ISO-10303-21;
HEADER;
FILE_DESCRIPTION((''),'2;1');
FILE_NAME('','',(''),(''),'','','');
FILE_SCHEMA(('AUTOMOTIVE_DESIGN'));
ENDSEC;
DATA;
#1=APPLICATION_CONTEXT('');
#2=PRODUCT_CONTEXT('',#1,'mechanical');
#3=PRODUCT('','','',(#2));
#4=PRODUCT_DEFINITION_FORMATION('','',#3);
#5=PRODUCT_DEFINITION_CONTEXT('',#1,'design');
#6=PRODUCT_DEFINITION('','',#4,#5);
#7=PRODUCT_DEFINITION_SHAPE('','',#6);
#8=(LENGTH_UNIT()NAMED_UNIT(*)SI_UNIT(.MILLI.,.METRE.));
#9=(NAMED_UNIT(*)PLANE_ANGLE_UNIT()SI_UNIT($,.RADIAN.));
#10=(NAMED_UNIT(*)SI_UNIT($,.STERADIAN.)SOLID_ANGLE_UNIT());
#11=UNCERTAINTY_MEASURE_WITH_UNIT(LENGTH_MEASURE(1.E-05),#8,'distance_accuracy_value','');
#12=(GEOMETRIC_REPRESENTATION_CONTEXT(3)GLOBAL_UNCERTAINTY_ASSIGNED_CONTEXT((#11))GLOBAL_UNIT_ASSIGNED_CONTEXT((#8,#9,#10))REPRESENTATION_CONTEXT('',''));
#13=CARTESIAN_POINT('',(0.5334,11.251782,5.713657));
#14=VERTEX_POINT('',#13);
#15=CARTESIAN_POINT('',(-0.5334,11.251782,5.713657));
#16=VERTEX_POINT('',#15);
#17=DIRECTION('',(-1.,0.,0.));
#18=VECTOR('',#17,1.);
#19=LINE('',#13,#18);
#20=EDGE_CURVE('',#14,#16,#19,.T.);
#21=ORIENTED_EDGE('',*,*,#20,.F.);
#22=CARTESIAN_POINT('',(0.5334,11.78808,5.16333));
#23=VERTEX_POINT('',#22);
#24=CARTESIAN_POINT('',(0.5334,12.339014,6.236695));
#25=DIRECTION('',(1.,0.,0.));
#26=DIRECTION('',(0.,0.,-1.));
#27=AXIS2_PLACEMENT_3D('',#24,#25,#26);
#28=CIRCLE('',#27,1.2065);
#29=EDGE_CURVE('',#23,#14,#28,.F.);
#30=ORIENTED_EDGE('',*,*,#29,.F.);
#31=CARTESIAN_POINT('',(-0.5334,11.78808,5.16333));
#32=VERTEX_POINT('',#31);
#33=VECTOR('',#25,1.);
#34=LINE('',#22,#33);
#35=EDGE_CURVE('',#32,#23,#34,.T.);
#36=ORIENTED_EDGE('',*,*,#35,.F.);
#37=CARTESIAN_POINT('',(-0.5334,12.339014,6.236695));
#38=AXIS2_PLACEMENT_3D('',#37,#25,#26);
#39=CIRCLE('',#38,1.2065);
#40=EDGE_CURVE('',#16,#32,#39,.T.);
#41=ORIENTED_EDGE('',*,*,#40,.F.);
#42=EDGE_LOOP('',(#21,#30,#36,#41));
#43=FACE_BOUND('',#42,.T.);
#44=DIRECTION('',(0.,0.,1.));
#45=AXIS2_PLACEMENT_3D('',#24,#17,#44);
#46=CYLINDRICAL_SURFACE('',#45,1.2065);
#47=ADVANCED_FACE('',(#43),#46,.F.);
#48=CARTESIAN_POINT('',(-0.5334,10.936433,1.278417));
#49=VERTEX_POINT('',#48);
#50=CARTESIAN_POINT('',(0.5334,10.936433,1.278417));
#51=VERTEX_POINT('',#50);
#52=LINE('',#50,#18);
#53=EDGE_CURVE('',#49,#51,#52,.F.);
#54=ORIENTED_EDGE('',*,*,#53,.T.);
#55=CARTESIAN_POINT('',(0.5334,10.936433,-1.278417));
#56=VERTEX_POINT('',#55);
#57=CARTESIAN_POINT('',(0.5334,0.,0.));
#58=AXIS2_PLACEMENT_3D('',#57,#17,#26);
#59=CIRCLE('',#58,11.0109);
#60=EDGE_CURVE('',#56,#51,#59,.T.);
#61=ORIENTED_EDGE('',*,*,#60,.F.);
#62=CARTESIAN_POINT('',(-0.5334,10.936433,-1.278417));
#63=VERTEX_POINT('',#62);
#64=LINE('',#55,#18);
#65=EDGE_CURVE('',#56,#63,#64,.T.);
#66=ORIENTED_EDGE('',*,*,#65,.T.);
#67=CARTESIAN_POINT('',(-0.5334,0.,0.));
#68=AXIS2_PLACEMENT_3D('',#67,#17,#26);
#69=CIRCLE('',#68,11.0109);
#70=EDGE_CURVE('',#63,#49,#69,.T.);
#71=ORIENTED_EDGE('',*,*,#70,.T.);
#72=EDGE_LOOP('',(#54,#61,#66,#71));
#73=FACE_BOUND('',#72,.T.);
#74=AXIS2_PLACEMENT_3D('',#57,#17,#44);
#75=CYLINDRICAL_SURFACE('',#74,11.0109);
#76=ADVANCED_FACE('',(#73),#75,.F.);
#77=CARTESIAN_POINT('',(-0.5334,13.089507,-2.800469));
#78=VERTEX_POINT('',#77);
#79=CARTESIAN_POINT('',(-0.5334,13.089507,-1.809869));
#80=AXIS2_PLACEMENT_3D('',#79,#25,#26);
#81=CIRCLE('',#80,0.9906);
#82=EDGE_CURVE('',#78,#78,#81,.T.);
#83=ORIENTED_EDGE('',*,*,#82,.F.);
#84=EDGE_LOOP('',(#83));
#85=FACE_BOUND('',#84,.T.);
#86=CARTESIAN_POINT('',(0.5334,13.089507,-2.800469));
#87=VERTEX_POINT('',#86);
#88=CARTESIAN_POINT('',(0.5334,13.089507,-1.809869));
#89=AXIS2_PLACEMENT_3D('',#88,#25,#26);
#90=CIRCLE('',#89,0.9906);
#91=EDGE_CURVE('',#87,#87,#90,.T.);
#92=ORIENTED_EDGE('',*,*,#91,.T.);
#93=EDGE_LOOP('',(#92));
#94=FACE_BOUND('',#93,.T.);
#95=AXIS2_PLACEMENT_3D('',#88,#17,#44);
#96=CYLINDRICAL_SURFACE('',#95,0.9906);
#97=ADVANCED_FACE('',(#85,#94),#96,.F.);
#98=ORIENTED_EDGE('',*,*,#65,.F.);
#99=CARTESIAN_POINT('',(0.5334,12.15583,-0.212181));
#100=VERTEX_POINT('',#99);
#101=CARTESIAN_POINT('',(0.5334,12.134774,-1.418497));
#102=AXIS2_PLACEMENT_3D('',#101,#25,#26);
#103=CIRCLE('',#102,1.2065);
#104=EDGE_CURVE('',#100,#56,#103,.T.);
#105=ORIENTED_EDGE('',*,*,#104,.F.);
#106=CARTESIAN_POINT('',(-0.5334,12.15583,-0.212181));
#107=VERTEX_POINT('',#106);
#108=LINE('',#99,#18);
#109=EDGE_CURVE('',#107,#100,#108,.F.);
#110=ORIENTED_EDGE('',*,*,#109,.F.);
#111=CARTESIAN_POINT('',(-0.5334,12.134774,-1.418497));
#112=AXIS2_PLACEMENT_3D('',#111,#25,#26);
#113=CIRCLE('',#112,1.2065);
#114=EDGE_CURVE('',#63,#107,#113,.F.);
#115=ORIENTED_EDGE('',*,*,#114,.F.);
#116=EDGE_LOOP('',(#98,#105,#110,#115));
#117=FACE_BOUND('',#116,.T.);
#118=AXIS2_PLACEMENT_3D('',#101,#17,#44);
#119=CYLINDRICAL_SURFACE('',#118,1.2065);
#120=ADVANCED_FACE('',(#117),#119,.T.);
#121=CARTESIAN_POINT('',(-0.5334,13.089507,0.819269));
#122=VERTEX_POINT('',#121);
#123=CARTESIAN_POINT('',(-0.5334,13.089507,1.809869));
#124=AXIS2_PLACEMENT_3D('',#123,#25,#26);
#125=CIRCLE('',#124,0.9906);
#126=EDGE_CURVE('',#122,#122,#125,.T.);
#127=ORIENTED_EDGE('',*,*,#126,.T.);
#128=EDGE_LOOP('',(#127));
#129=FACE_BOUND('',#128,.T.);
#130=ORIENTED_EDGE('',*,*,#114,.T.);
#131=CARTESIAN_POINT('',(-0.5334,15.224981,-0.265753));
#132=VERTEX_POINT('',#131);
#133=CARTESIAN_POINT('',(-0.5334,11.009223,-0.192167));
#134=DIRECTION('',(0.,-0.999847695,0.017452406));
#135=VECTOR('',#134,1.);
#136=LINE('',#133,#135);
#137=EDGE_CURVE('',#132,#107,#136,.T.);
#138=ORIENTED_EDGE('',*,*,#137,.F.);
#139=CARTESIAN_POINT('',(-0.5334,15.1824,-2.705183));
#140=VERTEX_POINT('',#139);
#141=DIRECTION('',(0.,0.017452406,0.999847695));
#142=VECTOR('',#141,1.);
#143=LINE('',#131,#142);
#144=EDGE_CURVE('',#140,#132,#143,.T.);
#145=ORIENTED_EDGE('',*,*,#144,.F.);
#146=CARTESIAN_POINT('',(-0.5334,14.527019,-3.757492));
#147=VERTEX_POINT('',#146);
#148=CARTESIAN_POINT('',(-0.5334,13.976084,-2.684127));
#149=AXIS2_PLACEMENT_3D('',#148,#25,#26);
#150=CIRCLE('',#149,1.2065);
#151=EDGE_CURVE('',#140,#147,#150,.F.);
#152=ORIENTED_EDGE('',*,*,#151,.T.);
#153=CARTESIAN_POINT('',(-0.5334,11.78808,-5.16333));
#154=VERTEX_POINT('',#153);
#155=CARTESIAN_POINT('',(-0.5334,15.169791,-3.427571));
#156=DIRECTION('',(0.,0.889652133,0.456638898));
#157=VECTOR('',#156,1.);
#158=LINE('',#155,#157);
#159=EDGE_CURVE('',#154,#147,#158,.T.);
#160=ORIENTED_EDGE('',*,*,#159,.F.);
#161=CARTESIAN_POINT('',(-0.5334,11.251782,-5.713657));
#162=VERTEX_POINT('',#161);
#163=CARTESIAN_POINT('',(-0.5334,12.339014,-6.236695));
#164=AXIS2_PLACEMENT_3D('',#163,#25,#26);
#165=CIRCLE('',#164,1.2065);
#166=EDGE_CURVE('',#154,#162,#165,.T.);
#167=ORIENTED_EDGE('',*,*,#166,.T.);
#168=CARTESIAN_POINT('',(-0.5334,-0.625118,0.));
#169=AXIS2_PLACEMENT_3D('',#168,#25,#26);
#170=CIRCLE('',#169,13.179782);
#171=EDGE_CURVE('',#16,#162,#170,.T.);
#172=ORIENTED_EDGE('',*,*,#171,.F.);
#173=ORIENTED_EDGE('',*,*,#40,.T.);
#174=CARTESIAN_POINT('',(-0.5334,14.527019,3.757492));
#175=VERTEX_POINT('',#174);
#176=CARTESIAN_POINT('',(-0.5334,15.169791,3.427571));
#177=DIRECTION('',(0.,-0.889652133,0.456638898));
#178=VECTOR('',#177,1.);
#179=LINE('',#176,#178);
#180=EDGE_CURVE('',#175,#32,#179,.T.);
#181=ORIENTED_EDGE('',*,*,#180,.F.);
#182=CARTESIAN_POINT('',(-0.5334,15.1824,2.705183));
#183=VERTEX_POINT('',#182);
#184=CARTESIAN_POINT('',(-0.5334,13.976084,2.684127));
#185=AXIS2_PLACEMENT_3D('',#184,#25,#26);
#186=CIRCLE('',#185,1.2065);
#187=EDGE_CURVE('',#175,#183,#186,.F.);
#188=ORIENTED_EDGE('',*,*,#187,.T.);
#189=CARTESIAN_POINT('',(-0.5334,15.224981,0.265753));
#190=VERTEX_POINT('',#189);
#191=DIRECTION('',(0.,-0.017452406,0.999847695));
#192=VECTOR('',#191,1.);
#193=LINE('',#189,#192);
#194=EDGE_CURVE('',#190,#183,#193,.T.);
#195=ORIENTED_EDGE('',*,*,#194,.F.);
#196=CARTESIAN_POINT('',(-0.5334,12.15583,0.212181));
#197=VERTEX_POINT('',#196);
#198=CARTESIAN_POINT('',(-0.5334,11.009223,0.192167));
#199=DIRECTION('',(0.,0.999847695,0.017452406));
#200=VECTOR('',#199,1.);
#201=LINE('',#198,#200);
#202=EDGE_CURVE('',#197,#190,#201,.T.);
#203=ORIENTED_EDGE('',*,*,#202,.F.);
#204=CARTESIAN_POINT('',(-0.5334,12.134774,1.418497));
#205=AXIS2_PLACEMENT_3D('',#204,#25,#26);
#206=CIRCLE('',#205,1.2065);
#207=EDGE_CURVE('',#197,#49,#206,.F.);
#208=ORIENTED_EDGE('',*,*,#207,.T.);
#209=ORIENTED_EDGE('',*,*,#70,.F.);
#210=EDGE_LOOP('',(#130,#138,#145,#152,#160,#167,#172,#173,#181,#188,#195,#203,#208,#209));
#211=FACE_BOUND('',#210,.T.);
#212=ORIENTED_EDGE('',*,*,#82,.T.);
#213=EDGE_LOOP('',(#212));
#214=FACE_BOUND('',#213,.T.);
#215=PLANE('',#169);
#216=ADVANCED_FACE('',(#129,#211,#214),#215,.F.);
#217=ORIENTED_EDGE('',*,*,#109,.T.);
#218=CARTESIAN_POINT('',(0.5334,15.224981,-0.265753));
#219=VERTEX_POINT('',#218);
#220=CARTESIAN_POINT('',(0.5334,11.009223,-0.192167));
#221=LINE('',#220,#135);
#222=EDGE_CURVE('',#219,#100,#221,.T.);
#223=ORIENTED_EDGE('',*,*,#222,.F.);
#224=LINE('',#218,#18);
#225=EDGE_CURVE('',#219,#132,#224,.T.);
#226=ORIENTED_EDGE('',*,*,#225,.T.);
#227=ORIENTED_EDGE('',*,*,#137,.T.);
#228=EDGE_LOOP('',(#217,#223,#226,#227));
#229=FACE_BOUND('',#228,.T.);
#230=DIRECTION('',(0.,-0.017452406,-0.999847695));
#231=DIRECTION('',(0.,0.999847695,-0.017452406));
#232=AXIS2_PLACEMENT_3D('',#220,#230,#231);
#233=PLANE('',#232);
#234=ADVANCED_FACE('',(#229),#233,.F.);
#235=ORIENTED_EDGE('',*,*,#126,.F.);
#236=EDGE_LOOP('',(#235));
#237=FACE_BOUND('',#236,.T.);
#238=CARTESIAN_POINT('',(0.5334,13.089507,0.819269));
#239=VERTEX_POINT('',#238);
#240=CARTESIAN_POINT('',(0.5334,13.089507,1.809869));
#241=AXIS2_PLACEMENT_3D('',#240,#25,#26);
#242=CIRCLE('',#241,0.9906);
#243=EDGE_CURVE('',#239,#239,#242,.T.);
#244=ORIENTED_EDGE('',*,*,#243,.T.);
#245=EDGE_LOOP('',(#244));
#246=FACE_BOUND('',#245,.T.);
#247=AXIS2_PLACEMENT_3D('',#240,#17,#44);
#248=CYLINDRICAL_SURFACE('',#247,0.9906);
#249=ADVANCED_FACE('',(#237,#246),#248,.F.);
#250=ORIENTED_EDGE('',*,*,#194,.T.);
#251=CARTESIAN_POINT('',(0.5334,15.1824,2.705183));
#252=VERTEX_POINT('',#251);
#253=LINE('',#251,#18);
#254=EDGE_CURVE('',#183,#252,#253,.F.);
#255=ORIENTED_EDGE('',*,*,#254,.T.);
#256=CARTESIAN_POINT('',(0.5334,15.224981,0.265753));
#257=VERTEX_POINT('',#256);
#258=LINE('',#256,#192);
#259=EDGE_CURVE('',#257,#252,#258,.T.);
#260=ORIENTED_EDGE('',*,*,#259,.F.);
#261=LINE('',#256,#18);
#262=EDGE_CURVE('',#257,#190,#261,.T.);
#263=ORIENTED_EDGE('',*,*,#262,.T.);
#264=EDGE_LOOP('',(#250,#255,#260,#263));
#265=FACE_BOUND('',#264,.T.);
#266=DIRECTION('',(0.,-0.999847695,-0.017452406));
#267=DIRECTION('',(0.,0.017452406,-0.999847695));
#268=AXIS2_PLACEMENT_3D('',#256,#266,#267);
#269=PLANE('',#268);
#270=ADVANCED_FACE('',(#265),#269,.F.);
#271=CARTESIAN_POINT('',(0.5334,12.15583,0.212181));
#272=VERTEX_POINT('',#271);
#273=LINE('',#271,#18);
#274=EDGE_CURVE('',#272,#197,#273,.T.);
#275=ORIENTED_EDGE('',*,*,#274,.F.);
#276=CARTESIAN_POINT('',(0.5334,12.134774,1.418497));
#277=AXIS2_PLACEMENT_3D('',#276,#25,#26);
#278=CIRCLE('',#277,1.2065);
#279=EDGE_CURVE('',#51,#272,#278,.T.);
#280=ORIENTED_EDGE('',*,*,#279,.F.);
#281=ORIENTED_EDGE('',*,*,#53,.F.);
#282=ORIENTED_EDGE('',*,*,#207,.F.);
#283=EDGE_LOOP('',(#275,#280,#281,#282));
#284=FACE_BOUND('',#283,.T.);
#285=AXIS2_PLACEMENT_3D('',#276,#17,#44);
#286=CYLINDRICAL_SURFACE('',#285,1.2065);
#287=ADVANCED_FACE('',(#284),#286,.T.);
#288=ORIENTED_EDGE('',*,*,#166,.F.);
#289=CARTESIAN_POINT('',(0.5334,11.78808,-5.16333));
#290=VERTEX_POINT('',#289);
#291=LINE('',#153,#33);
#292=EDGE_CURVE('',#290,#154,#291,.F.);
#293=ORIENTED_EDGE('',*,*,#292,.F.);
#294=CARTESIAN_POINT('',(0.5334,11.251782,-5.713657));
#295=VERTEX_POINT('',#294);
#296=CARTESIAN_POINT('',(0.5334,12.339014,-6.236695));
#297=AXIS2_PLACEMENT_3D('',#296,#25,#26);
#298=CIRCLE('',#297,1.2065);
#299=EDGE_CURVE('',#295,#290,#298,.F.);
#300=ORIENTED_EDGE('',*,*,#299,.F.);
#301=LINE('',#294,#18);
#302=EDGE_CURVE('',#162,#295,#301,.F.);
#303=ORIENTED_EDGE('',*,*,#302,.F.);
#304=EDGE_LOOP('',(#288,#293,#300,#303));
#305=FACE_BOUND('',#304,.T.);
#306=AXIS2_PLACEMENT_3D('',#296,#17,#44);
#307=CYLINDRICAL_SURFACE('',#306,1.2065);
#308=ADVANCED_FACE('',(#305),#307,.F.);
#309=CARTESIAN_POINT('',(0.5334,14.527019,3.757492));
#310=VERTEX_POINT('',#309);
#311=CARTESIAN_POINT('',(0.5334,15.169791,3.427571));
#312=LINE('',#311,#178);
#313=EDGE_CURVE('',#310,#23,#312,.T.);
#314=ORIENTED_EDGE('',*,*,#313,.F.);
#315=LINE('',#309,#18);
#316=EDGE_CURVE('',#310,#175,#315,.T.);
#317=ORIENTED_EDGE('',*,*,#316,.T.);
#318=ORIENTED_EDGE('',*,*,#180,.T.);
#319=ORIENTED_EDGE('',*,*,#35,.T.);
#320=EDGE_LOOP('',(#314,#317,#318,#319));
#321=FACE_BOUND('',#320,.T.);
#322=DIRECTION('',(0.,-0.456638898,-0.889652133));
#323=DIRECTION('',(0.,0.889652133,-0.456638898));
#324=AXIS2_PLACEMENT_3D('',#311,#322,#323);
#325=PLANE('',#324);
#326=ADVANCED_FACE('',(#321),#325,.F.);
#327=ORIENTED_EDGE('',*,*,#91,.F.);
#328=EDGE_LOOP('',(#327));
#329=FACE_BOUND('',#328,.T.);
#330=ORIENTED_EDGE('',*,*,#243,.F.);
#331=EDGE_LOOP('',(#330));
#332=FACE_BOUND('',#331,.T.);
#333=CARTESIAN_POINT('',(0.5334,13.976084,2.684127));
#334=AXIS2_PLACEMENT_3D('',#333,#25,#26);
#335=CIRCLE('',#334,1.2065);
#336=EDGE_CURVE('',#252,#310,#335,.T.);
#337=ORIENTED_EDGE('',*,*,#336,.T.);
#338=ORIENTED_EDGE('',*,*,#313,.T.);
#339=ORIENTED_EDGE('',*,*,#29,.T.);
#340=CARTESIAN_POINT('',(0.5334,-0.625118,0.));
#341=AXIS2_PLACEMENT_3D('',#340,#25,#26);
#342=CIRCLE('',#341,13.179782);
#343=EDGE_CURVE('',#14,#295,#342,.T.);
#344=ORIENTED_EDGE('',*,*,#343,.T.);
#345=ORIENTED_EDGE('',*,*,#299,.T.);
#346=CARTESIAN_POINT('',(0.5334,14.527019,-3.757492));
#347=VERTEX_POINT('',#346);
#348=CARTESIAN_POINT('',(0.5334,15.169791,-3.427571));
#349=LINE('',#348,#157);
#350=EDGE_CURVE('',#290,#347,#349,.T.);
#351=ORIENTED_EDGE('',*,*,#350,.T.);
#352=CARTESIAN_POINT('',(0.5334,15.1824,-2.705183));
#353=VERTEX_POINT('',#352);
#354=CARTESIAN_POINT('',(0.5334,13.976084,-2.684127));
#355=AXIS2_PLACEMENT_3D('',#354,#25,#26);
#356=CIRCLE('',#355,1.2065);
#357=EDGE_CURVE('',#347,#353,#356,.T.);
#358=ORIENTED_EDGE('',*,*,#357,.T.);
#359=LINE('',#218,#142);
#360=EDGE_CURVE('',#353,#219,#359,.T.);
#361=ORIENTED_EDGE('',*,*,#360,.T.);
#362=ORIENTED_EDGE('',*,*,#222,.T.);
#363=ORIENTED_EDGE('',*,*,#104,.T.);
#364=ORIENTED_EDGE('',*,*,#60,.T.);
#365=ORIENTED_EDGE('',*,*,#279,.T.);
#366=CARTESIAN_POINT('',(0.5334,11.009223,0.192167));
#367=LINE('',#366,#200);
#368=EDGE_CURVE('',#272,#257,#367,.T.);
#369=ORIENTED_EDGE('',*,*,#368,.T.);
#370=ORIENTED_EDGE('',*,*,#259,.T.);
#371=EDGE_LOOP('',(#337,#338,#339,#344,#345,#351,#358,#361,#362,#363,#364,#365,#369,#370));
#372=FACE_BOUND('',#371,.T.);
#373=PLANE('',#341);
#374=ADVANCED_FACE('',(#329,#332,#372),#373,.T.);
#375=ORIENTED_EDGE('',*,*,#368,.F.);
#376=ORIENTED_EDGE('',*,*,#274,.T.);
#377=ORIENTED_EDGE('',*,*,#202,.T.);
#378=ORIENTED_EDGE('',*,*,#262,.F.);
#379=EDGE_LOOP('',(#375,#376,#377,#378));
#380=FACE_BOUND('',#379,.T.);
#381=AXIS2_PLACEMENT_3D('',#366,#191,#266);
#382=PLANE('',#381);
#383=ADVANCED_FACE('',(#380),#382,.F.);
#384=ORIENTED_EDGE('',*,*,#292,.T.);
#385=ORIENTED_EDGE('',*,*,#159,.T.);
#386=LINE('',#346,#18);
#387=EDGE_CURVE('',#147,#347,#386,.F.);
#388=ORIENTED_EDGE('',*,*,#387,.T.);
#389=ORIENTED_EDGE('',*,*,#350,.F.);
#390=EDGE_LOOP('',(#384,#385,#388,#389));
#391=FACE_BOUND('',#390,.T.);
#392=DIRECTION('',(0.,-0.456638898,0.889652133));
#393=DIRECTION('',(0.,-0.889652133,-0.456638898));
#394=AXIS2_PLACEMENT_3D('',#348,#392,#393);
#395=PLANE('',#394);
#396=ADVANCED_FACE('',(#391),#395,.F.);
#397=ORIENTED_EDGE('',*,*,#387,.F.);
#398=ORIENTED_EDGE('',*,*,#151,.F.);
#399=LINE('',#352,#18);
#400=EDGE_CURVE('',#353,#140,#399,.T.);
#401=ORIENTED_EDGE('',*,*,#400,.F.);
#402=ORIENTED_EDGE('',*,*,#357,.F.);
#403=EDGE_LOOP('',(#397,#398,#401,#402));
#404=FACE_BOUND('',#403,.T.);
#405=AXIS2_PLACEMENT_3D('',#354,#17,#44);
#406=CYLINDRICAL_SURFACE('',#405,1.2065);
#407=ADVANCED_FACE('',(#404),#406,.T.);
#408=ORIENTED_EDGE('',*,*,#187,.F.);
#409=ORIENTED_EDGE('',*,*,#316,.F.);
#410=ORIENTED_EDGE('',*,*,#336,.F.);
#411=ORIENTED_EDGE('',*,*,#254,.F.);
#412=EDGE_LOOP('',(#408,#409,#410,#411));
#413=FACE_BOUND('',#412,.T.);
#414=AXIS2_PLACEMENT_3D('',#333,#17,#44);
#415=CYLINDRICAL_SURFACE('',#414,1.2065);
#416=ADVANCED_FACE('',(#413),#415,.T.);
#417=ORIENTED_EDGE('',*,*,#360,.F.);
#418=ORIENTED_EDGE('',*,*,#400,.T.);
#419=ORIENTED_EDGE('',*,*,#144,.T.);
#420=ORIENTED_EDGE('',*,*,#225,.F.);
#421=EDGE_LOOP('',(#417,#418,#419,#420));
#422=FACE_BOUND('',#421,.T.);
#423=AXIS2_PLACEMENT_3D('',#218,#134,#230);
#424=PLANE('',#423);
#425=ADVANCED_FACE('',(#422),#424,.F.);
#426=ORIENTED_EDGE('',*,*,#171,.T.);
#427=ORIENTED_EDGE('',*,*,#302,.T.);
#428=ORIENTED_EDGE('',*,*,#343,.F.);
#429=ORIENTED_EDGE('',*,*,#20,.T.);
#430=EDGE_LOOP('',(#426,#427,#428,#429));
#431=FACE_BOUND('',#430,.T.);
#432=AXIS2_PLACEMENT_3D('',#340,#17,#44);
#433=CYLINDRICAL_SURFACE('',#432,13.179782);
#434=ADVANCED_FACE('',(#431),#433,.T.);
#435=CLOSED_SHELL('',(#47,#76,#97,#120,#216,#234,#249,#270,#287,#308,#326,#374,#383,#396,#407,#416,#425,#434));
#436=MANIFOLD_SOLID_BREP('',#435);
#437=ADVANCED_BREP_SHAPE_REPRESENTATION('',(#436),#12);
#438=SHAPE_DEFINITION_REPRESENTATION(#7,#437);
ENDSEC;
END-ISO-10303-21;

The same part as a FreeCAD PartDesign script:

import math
import FreeCAD as App
import Part
import Sketcher

V = App.Vector
Q = App.Units.Quantity


def edges_at(feature, points):
    """Names of the edges that pass closest to the given points."""
    edges = feature.Shape.Edges
    near = lambda p: min(range(len(edges)), key=lambda i: edges[i].distToShape(Part.Vertex(*p))[0])
    return sorted({f"Edge{near(p) + 1}" for p in points})

doc = App.newDocument("Part")
body = doc.addObject("PartDesign::Body", "Body")

# Sketch on YZ plane
sketch1 = doc.addObject("Sketcher::SketchObject", "Sketch")
body.addObject(sketch1)
sketch1.AttachmentSupport = (doc.YZ_Plane, [""])
sketch1.MapMode = "FlatFace"
sketch1.addGeometry([
    Part.LineSegment(V(15.17, 3.43, 0), V(11.42, 5.35, 0)),  # 0
    Part.ArcOfCircle(Part.Circle(V(-0.63, 0, 0), V(0, 0, 1), 13.18), math.radians(24), math.radians(336)),  # 1
    Part.LineSegment(V(11.42, -5.35, 0), V(15.17, -3.43, 0)),  # 2
    Part.LineSegment(V(15.17, -3.43, 0), V(15.22, -0.27, 0)),  # 3
    Part.LineSegment(V(15.22, -0.27, 0), V(11.01, -0.19, 0)),  # 4
    Part.ArcOfCircle(Part.Circle(V(0, 0, 0), V(0, 0, 1), 11.01), math.radians(1), math.radians(359)),  # 5
    Part.LineSegment(V(11.01, 0.19, 0), V(15.22, 0.27, 0)),  # 6
    Part.LineSegment(V(15.22, 0.27, 0), V(15.17, 3.43, 0)),  # 7
    Part.Circle(V(13.09, 1.81, 0), V(0, 0, 1), 0.99),  # 8
    Part.Circle(V(13.09, -1.81, 0), V(0, 0, 1), 0.99),  # 9
], False)
sketch1.addConstraint([
    Sketcher.Constraint("Coincident", 0, 2, 1, 1),
    Sketcher.Constraint("Coincident", 1, 2, 2, 1),
    Sketcher.Constraint("Coincident", 2, 2, 3, 1),
    Sketcher.Constraint("Coincident", 3, 2, 4, 1),
    Sketcher.Constraint("Coincident", 4, 2, 5, 2),
    Sketcher.Constraint("Coincident", 5, 1, 6, 1),
    Sketcher.Constraint("Coincident", 6, 2, 7, 1),
    Sketcher.Constraint("Coincident", 7, 2, 0, 1),
    Sketcher.Constraint("Coincident", 5, 3, -1, 1),
    Sketcher.Constraint("Equal", 8, 9),
    Sketcher.Constraint("Symmetric", 8, 3, 9, 3, -1),
    Sketcher.Constraint("Symmetric", 0, 2, 1, 2, -1),
    Sketcher.Constraint("Symmetric", 3, 2, 6, 2, -1),
    Sketcher.Constraint("Symmetric", 2, 2, 7, 2, -1),
    Sketcher.Constraint("Perpendicular", 3, 4),
    Sketcher.Constraint("Perpendicular", 6, 7),
    Sketcher.Constraint("Equal", 2, 4),
    Sketcher.Constraint("Diameter", 8, Q("0.078 in")),
    Sketcher.Constraint("Angle", 3, Q("89 deg")),
    Sketcher.Constraint("Radius", 5, Q("0.4335 in")),
    Sketcher.Constraint("Distance", 0, Q("0.166 in")),
    Sketcher.Constraint("Radius", 1, Q("13.179782 mm")),
    Sketcher.Constraint("Distance", 3, Q("0.1245 in")),
    Sketcher.Constraint("DistanceX", 1, 3, -1, 1, Q("0.625118 mm")),
    Sketcher.Constraint("DistanceY", -1, 1, 8, 3, Q("1.809869 mm")),
    Sketcher.Constraint("DistanceX", -1, 1, 0, 2, Q("11.418662 mm")),
    Sketcher.Constraint("DistanceX", -1, 1, 8, 3, Q("13.089507 mm")),
])
pad1 = doc.addObject("PartDesign::Pad", "Pad")
body.addObject(pad1)
pad1.Profile = sketch1
pad1.Type = "TwoLengths"
pad1.Length = Q("0.021 in")
pad1.Length2 = Q("0.021 in")
doc.recompute()

fillet = doc.addObject("PartDesign::Fillet", "Fillet")
body.addObject(fillet)
fillet.Base = (pad1, edges_at(pad1, [
    (0, 11.419, 5.353),
    (0, 15.17, 3.428),
    (0, 11.009, 0.192),
    (0, 11.009, -0.192),
    (0, 15.17, -3.428),
    (0, 11.419, -5.353),
]))
fillet.Radius = Q("0.0475 in")

doc.recompute()
